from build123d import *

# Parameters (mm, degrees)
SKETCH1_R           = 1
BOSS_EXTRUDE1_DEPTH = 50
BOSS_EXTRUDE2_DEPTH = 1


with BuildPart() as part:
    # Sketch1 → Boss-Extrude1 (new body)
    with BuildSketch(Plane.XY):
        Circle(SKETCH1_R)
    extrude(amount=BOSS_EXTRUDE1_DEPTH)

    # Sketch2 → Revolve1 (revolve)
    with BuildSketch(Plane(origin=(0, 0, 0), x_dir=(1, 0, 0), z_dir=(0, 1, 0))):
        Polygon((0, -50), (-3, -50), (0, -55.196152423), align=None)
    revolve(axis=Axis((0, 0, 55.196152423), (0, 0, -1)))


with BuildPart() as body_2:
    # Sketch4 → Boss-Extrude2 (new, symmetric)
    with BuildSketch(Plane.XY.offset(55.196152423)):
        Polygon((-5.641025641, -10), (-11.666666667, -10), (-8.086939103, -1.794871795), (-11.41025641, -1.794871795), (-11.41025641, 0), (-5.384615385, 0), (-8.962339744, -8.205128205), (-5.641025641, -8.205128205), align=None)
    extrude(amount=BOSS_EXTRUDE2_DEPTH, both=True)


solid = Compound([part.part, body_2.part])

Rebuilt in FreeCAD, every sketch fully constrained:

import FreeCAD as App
import Part
import Sketcher
from FreeCAD import Vector
Q = App.Units.Quantity


def add_polygon(sketch, points):
    """Adds a closed chain of lines whose ends are joined by coincident constraints."""
    first, n = sketch.GeometryCount, len(points)
    for a, b in zip(points, points[1:] + points[:1]):
        sketch.addGeometry(Part.LineSegment(App.Vector(*a, 0), App.Vector(*b, 0)), False)
    for i in range(n):
        sketch.addConstraint(Sketcher.Constraint("Coincident", first + i, 2, first + (i + 1) % n, 1))

doc = App.newDocument("Part")
body = doc.addObject("PartDesign::Body", "Body")

# Sketch on XY plane
sketch1 = body.newObject("Sketcher::SketchObject", "Sketch")
sketch1.AttachmentSupport = (doc.getObject("XY_Plane"), [""])
sketch1.MapMode = "FlatFace"
sketch1.addGeometry(Part.Circle(Vector(0, 0, 0), Vector(0, 0, 1), 1), False)
sketch1.addConstraint([
    Sketcher.Constraint("Coincident", 0, 3, -1, 1),
    Sketcher.Constraint("Diameter", 0, Q("2 mm")),
])
pad1 = body.newObject("PartDesign::Pad", "Pad")
pad1.Profile = sketch1
pad1.Length = 50

# Sketch on XZ plane
sketch2 = body.newObject("Sketcher::SketchObject", "Sketch001")
sketch2.AttachmentSupport = (doc.getObject("XZ_Plane"), [""])
sketch2.MapMode = "FlatFace"
add_polygon(sketch2, [(0, 50), (-3, 50), (0, 55.2)])  # lines 0-2
sketch2.addConstraint([
    Sketcher.Constraint("Horizontal", 0),
    Sketcher.Constraint("Vertical", 2),
    Sketcher.Constraint("PointOnObject", 1, 2, -2),
    Sketcher.Constraint("DistanceX", 0, 2, 0, 1, Q("3 mm")),
    Sketcher.Constraint("Angle", 1, Q("60 deg")),
    Sketcher.Constraint("DistanceY", -1, 1, 0, 2, Q("50 mm")),
])
revolution = body.newObject("PartDesign::Revolution", "Revolution")
revolution.Profile = sketch2
revolution.ReferenceAxis = (sketch2, ["V_Axis"])
revolution.Angle = 360
body2 = doc.addObject("PartDesign::Body", "Body001")

# Sketch on XY plane
sketch3 = body2.newObject("Sketcher::SketchObject", "Sketch002")
sketch3.AttachmentSupport = (doc.getObject("XY_Plane001"), [""])
sketch3.MapMode = "FlatFace"
sketch3.AttachmentOffset = App.Placement(Vector(0, 0, 55.196152), App.Rotation())
add_polygon(sketch3, [(-11.7, -10), (-5.6, -10), (-5.6, -8.2), (-9, -8.2), (-5.4, 0), (-11.4, 0), (-11.4, -1.8), (-8.1, -1.8)])  # lines 0-7
sketch3.addConstraint([
    Sketcher.Constraint("Horizontal", 0),
    Sketcher.Constraint("Vertical", 1),
    Sketcher.Constraint("Horizontal", 2),
    Sketcher.Constraint("Horizontal", 4),
    Sketcher.Constraint("Vertical", 5),
    Sketcher.Constraint("Horizontal", 6),
    Sketcher.Constraint("PointOnObject", 3, 2, -1),
    Sketcher.Constraint("Equal", 0, 4),
    Sketcher.Constraint("Equal", 1, 5),
    Sketcher.Constraint("DistanceY", 0, 2, -1, 1, Q("10 mm")),
    Sketcher.Constraint("DistanceX", 0, 1, 0, 2, Q("6.025641 mm")),
    Sketcher.Constraint("DistanceY", 1, 1, 1, 2, Q("1.794872 mm")),
    Sketcher.Constraint("DistanceX", 2, 2, 6, 2, Q("0.875401 mm")),
    Sketcher.Constraint("DistanceX", 2, 2, 2, 1, Q("3.321314 mm")),
    Sketcher.Constraint("DistanceX", 6, 1, 6, 2, Q("3.323317 mm")),
    Sketcher.Constraint("DistanceX", 2, 2, -1, 1, Q("8.96234 mm")),
])
pad2 = body2.newObject("PartDesign::Pad", "Pad001")
pad2.Profile = sketch3
pad2.Length = 2
pad2.Midplane = True

doc.recompute()
